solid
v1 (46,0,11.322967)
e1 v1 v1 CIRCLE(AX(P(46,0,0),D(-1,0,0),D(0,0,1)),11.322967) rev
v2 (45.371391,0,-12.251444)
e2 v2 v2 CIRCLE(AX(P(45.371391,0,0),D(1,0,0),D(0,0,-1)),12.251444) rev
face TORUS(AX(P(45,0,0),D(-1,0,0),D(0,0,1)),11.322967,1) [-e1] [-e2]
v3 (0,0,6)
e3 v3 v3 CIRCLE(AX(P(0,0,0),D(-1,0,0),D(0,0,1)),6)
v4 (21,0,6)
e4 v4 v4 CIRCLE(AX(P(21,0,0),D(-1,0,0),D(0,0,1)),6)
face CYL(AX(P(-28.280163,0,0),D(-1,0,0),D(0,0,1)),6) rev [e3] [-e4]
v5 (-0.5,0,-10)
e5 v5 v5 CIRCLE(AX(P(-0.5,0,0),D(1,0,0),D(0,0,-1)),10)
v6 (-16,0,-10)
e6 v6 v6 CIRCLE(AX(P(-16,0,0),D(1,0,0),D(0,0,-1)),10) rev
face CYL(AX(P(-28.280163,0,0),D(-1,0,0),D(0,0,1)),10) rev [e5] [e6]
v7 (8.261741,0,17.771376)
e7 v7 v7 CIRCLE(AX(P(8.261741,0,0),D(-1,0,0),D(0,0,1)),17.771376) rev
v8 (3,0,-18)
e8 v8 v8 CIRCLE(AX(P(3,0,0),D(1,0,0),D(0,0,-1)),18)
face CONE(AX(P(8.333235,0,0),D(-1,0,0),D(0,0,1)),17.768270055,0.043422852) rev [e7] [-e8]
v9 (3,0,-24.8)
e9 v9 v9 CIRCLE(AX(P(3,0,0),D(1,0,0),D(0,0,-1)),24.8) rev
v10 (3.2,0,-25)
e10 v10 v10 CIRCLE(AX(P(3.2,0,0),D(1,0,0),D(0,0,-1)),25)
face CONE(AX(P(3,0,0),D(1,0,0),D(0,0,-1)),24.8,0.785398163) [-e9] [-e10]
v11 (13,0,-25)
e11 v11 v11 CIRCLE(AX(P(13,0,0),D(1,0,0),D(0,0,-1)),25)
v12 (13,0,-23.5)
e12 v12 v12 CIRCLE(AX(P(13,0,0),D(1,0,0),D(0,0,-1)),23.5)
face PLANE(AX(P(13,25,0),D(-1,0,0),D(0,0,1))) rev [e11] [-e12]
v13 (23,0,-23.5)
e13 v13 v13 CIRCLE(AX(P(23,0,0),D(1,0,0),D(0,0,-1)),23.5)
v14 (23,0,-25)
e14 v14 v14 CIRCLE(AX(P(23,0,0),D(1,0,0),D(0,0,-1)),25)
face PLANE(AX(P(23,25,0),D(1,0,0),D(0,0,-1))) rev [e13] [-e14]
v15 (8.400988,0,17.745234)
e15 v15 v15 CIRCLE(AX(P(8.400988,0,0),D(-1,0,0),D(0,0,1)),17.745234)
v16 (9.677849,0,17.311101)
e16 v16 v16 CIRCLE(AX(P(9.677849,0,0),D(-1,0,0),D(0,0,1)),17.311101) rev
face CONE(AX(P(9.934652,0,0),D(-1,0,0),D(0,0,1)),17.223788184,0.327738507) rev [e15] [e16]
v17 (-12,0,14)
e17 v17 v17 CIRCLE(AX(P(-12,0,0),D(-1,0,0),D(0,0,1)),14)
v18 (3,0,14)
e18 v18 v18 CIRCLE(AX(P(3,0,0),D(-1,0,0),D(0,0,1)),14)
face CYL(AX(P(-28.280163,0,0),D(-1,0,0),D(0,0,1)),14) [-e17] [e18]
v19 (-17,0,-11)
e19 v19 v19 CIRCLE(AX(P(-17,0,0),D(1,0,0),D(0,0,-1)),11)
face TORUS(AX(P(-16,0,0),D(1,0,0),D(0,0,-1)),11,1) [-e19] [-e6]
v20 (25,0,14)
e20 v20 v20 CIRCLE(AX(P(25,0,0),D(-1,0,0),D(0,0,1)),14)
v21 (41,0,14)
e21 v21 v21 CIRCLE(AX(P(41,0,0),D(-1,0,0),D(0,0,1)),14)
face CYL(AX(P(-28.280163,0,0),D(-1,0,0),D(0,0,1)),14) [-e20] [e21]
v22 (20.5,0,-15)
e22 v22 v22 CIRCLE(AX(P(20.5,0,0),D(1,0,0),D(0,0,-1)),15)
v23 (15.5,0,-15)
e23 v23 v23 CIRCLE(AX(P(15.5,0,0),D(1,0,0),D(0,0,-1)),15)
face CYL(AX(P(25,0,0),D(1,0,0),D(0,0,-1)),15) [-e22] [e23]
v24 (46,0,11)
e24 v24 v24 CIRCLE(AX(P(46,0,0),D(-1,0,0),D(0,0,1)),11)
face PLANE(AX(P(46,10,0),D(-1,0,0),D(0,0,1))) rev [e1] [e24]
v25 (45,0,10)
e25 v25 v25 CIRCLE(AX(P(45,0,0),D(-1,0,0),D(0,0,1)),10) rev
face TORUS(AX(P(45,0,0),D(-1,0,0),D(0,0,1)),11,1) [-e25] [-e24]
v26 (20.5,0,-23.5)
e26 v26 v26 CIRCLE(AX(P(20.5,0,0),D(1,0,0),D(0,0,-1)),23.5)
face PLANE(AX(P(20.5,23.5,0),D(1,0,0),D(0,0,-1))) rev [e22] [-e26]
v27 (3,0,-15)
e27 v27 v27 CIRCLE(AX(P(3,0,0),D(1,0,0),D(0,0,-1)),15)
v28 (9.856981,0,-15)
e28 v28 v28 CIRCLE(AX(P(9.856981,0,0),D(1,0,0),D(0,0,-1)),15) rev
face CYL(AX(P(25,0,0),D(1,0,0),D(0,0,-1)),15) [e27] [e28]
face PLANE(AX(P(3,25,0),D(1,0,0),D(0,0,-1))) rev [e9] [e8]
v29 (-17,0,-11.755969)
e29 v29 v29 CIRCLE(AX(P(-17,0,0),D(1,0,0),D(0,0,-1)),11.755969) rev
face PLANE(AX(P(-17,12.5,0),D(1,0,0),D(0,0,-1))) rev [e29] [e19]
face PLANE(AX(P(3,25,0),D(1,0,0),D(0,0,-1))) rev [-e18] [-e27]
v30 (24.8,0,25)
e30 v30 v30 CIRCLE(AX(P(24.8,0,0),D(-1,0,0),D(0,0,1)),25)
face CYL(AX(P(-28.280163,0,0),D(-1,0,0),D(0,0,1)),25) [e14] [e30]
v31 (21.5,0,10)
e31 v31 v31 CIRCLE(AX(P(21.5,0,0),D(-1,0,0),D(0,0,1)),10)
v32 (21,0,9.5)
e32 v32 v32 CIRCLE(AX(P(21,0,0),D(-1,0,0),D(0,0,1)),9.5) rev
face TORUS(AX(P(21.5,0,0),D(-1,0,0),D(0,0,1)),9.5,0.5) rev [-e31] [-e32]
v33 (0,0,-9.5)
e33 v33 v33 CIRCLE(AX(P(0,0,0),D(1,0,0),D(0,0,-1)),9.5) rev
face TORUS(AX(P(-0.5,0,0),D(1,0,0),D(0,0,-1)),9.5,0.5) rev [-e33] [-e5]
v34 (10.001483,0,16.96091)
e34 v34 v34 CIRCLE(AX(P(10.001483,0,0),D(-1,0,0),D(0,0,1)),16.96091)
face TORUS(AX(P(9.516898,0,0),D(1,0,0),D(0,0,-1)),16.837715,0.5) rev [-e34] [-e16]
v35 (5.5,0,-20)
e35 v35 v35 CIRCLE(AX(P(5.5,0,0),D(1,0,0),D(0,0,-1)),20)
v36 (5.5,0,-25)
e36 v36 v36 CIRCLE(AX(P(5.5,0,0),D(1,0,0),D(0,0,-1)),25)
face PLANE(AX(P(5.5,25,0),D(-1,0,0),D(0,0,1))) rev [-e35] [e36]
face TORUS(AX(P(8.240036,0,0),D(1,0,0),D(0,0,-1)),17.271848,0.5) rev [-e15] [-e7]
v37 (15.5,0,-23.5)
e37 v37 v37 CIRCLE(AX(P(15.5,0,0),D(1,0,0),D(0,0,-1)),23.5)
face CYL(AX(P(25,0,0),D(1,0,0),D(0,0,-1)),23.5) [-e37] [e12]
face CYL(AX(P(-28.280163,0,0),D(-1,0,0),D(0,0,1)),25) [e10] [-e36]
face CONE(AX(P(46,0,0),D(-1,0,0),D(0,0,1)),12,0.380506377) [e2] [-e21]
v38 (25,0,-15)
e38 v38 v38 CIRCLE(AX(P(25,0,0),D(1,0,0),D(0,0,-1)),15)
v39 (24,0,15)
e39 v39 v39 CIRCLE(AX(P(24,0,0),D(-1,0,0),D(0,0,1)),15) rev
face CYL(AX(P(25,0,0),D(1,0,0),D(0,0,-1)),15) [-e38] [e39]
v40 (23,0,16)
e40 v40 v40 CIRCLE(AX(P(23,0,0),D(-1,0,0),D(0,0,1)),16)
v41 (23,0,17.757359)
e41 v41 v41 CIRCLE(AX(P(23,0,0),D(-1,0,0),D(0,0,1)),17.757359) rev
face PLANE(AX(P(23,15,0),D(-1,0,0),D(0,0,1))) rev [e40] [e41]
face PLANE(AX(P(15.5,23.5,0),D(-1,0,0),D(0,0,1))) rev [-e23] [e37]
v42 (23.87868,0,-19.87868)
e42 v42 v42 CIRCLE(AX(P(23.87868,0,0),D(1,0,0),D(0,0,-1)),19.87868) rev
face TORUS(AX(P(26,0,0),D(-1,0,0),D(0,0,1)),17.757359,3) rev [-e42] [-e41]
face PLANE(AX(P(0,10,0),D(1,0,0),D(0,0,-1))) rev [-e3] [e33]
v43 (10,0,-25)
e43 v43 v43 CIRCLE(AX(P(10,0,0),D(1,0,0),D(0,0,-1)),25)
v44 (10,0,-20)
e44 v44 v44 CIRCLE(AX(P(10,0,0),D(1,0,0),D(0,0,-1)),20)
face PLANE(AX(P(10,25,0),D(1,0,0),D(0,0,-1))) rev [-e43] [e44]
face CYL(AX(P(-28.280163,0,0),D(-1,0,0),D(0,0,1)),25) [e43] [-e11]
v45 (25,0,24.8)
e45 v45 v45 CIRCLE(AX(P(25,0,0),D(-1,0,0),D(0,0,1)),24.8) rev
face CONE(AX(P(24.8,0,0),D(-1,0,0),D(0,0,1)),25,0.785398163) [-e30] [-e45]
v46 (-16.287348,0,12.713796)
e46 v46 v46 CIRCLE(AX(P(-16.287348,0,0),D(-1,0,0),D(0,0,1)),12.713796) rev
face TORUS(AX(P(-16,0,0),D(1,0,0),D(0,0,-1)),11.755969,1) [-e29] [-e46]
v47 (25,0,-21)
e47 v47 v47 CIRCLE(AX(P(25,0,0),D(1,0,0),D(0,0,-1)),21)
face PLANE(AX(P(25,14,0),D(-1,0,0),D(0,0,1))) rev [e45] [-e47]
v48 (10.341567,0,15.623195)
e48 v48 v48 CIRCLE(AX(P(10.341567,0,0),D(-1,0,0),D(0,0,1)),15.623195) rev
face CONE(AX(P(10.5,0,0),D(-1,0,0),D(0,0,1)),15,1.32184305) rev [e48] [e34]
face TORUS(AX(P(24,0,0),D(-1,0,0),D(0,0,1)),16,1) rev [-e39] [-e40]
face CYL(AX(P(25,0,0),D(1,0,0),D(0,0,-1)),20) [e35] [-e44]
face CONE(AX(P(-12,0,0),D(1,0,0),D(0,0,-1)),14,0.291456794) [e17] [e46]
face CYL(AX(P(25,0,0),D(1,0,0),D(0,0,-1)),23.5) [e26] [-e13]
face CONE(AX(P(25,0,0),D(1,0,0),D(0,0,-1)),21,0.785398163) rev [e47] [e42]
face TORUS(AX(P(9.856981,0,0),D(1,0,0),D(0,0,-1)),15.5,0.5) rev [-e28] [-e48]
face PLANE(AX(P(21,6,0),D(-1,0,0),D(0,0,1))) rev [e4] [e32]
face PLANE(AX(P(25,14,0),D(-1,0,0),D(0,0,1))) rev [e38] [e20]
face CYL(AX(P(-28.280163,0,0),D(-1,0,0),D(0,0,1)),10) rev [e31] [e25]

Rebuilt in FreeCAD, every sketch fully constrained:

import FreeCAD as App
import Part
import Sketcher
from FreeCAD import Vector


def edges_at(feature, points):
    """Names of the edges that pass closest to the given points."""
    edges = feature.Shape.Edges
    near = lambda p: min(range(len(edges)), key=lambda i: edges[i].distToShape(Part.Vertex(*p))[0])
    return sorted({f"Edge{near(p) + 1}" for p in points})


def add_polygon(sketch, points):
    """Adds a closed chain of lines whose ends are joined by coincident constraints."""
    first, n = sketch.GeometryCount, len(points)
    for a, b in zip(points, points[1:] + points[:1]):
        sketch.addGeometry(Part.LineSegment(App.Vector(*a, 0), App.Vector(*b, 0)), False)
    for i in range(n):
        sketch.addConstraint(Sketcher.Constraint("Coincident", first + i, 2, first + (i + 1) % n, 1))

doc = App.newDocument("Part")
body = doc.addObject("PartDesign::Body", "Body")

sketch1 = doc.addObject("Sketcher::SketchObject", "Sketch")
body.addObject(sketch1)
sketch1.AttachmentSupport = (doc.XY_Plane, [""])
sketch1.MapMode = "FlatFace"
add_polygon(sketch1, [(0, 6), (21, 6), (21, 10), (46, 10), (46, 12), (41, 14), (25, 14), (25, 25), (3, 25), (3, 14), (-12, 14), (-17, 12.5), (-17, 10), (0, 10)])
sketch1.addConstraint(Sketcher.Constraint("Horizontal", 0))
sketch1.addConstraint(Sketcher.Constraint("Vertical", 1))
sketch1.addConstraint(Sketcher.Constraint("Horizontal", 2))
sketch1.addConstraint(Sketcher.Constraint("Vertical", 3))
sketch1.addConstraint(Sketcher.Constraint("Horizontal", 5))
sketch1.addConstraint(Sketcher.Constraint("Vertical", 6))
sketch1.addConstraint(Sketcher.Constraint("Horizontal", 7))
sketch1.addConstraint(Sketcher.Constraint("Vertical", 8))
sketch1.addConstraint(Sketcher.Constraint("Horizontal", 9))
sketch1.addConstraint(Sketcher.Constraint("Vertical", 11))
sketch1.addConstraint(Sketcher.Constraint("Horizontal", 12))
sketch1.addConstraint(Sketcher.Constraint("Vertical", 13))
sketch1.addConstraint(Sketcher.Constraint("PointOnObject", 12, 2, -2))
sketch1.addConstraint(Sketcher.Constraint("Horizontal", 5, 2, 8, 2))
sketch1.addConstraint(Sketcher.Constraint("Horizontal", 2, 2, 11, 2))
sketch1.addConstraint(Sketcher.Constraint("DistanceX", 0, 1, 0, 2, 21.0))
sketch1.addConstraint(Sketcher.Constraint("DistanceX", 2, 1, 2, 2, 25.0))
sketch1.addConstraint(Sketcher.Constraint("DistanceX", 5, 2, 5, 1, 16.0))
sketch1.addConstraint(Sketcher.Constraint("DistanceX", 7, 2, 7, 1, 22.0))
sketch1.addConstraint(Sketcher.Constraint("DistanceX", 9, 2, 9, 1, 15.0))
sketch1.addConstraint(Sketcher.Constraint("DistanceX", 12, 1, 12, 2, 17.0))
sketch1.addConstraint(Sketcher.Constraint("DistanceY", 1, 1, 1, 2, 4.0))
sketch1.addConstraint(Sketcher.Constraint("DistanceY", 3, 1, 3, 2, 2.0))
sketch1.addConstraint(Sketcher.Constraint("DistanceY", 6, 1, 6, 2, 11.0))
sketch1.addConstraint(Sketcher.Constraint("DistanceY", 11, 2, 11, 1, 2.5))
sketch1.addConstraint(Sketcher.Constraint("DistanceY", -1, 1, 0, 2, 6.0))
sketch1.addConstraint(Sketcher.Constraint("DistanceX", -1, 1, 4, 2, 41.0))
sketch1.addConstraint(Sketcher.Constraint("DistanceY", -1, 1, 4, 2, 14.0))
revolution = doc.addObject("PartDesign::Revolution", "Revolution")
body.addObject(revolution)
revolution.Profile = sketch1
revolution.ReferenceAxis = (sketch1, ["H_Axis"])
revolution.Angle = 360

sketch2 = doc.addObject("Sketcher::SketchObject", "Sketch001")
body.addObject(sketch2)
sketch2.AttachmentSupport = (doc.XY_Plane, [""])
sketch2.MapMode = "FlatFace"
add_polygon(sketch2, [(3, 15), (10.5, 15), (9.9, 17.2), (8.3, 17.8), (3, 18)])
add_polygon(sketch2, [(20.5, 23.5), (23, 23.5), (23, 25), (13, 25), (13, 23.5), (15.5, 23.5), (15.5, 15), (20.5, 15)])
add_polygon(sketch2, [(5.5, 25), (5.5, 20), (10, 20), (10, 25)])
add_polygon(sketch2, [(23, 15), (25, 15), (25, 21), (23, 19)])
sketch2.addConstraint(Sketcher.Constraint("Horizontal", 0))
sketch2.addConstraint(Sketcher.Constraint("Vertical", 4))
sketch2.addConstraint(Sketcher.Constraint("Horizontal", 5))
sketch2.addConstraint(Sketcher.Constraint("Vertical", 6))
sketch2.addConstraint(Sketcher.Constraint("Horizontal", 7))
sketch2.addConstraint(Sketcher.Constraint("Vertical", 8))
sketch2.addConstraint(Sketcher.Constraint("Horizontal", 9))
sketch2.addConstraint(Sketcher.Constraint("Vertical", 10))
sketch2.addConstraint(Sketcher.Constraint("Horizontal", 11))
sketch2.addConstraint(Sketcher.Constraint("Vertical", 12))
sketch2.addConstraint(Sketcher.Constraint("Vertical", 13))
sketch2.addConstraint(Sketcher.Constraint("Horizontal", 14))
sketch2.addConstraint(Sketcher.Constraint("Vertical", 15))
sketch2.addConstraint(Sketcher.Constraint("Horizontal", 16))
sketch2.addConstraint(Sketcher.Constraint("Horizontal", 17))
sketch2.addConstraint(Sketcher.Constraint("Vertical", 18))
sketch2.addConstraint(Sketcher.Constraint("Vertical", 20))
sketch2.addConstraint(Sketcher.Constraint("Horizontal", 5, 2, 8, 2))
sketch2.addConstraint(Sketcher.Constraint("Horizontal", 4, 2, 10, 2))
sketch2.addConstraint(Sketcher.Constraint("Horizontal", 7, 2, 15, 2))
sketch2.addConstraint(Sketcher.Constraint("Horizontal", 11, 2, 17, 2))
sketch2.addConstraint(Sketcher.Constraint("Vertical", 6, 2, 19, 2))
sketch2.addConstraint(Sketcher.Constraint("Equal", 5, 9))
sketch2.addConstraint(Sketcher.Constraint("Equal", 11, 13))
sketch2.addConstraint(Sketcher.Constraint("DistanceX", 7, 2, 7, 1, 10.0))
sketch2.addConstraint(Sketcher.Constraint("DistanceX", 11, 1, 11, 2, 5.0))
sketch2.addConstraint(Sketcher.Constraint("DistanceX", 17, 1, 17, 2, 2.0))
sketch2.addConstraint(Sketcher.Constraint("DistanceY", 4, 2, 4, 1, 3.0))
sketch2.addConstraint(Sketcher.Constraint("DistanceY", 18, 1, 18, 2, 6.0))
sketch2.addConstraint(Sketcher.Constraint("DistanceY", 20, 2, 20, 1, 4.0))
sketch2.addConstraint(Sketcher.Constraint("DistanceX", 0, 1, 0, 2, 7.5))
sketch2.addConstraint(Sketcher.Constraint("DistanceX", 14, 1, 14, 2, 4.5))
sketch2.addConstraint(Sketcher.Constraint("DistanceY", 6, 1, 6, 2, 1.5))
sketch2.addConstraint(Sketcher.Constraint("DistanceY", 10, 2, 10, 1, 8.5))
sketch2.addConstraint(Sketcher.Constraint("DistanceY", -1, 1, 0, 2, 15.0))
sketch2.addConstraint(Sketcher.Constraint("DistanceX", -1, 1, 3, 2, 3.0))
sketch2.addConstraint(Sketcher.Constraint("DistanceX", -1, 1, 5, 2, 23.0))
sketch2.addConstraint(Sketcher.Constraint("DistanceX", -1, 1, 14, 2, 10.0))
sketch2.addConstraint(Sketcher.Constraint("Distance", 2, 1.691448))
sketch2.addConstraint(Sketcher.Constraint("DistanceY", -1, 1, 1, 2, 17.223788))
sketch2.addConstraint(Sketcher.Constraint("DistanceY", -1, 1, 2, 2, 17.76827))
sketch2.addConstraint(Sketcher.Constraint("Distance", 1, 2.294526))
groove = doc.addObject("PartDesign::Groove", "Groove")
body.addObject(groove)
groove.Profile = sketch2
groove.ReferenceAxis = (sketch2, ["H_Axis"])
groove.Angle = 360
doc.recompute()

fillet = doc.addObject("PartDesign::Fillet", "Fillet")
body.addObject(fillet)
fillet.Base = (groove, edges_at(groove, [
    (-17, 0, -10),
    (-17, 0, -12.5),
    (46, 0, -12),
    (46, 0, -10),
]))
fillet.Radius = 1
doc.recompute()

fillet2 = doc.addObject("PartDesign::Fillet", "Fillet001")
body.addObject(fillet2)
fillet2.Base = (fillet, edges_at(fillet, [(0, 0, -10), (21, 0, -10)]))
fillet2.Radius = 0.5
doc.recompute()

fillet3 = doc.addObject("PartDesign::Fillet", "Fillet002")
body.addObject(fillet3)
fillet3.Base = (fillet2, edges_at(fillet2, [(23, 0, 15)]))
fillet3.Radius = 1
doc.recompute()

fillet4 = doc.addObject("PartDesign::Fillet", "Fillet003")
body.addObject(fillet4)
fillet4.Base = (fillet3, edges_at(fillet3, [(23, 0, 19)]))
fillet4.Radius = 3
doc.recompute()

fillet5 = doc.addObject("PartDesign::Fillet", "Fillet004")
body.addObject(fillet5)
fillet5.Base = (fillet4, edges_at(fillet4, [(10.5, 0, 15), (9.935, 0, 17.224), (8.333, 0, 17.768)]))
fillet5.Radius = 0.5
doc.recompute()

chamfer = doc.addObject("PartDesign::Chamfer", "Chamfer")
body.addObject(chamfer)
chamfer.Base = (fillet5, edges_at(fillet5, [(3, 0, -25), (25, 0, -25)]))
chamfer.Size = 0.2

doc.recompute()
